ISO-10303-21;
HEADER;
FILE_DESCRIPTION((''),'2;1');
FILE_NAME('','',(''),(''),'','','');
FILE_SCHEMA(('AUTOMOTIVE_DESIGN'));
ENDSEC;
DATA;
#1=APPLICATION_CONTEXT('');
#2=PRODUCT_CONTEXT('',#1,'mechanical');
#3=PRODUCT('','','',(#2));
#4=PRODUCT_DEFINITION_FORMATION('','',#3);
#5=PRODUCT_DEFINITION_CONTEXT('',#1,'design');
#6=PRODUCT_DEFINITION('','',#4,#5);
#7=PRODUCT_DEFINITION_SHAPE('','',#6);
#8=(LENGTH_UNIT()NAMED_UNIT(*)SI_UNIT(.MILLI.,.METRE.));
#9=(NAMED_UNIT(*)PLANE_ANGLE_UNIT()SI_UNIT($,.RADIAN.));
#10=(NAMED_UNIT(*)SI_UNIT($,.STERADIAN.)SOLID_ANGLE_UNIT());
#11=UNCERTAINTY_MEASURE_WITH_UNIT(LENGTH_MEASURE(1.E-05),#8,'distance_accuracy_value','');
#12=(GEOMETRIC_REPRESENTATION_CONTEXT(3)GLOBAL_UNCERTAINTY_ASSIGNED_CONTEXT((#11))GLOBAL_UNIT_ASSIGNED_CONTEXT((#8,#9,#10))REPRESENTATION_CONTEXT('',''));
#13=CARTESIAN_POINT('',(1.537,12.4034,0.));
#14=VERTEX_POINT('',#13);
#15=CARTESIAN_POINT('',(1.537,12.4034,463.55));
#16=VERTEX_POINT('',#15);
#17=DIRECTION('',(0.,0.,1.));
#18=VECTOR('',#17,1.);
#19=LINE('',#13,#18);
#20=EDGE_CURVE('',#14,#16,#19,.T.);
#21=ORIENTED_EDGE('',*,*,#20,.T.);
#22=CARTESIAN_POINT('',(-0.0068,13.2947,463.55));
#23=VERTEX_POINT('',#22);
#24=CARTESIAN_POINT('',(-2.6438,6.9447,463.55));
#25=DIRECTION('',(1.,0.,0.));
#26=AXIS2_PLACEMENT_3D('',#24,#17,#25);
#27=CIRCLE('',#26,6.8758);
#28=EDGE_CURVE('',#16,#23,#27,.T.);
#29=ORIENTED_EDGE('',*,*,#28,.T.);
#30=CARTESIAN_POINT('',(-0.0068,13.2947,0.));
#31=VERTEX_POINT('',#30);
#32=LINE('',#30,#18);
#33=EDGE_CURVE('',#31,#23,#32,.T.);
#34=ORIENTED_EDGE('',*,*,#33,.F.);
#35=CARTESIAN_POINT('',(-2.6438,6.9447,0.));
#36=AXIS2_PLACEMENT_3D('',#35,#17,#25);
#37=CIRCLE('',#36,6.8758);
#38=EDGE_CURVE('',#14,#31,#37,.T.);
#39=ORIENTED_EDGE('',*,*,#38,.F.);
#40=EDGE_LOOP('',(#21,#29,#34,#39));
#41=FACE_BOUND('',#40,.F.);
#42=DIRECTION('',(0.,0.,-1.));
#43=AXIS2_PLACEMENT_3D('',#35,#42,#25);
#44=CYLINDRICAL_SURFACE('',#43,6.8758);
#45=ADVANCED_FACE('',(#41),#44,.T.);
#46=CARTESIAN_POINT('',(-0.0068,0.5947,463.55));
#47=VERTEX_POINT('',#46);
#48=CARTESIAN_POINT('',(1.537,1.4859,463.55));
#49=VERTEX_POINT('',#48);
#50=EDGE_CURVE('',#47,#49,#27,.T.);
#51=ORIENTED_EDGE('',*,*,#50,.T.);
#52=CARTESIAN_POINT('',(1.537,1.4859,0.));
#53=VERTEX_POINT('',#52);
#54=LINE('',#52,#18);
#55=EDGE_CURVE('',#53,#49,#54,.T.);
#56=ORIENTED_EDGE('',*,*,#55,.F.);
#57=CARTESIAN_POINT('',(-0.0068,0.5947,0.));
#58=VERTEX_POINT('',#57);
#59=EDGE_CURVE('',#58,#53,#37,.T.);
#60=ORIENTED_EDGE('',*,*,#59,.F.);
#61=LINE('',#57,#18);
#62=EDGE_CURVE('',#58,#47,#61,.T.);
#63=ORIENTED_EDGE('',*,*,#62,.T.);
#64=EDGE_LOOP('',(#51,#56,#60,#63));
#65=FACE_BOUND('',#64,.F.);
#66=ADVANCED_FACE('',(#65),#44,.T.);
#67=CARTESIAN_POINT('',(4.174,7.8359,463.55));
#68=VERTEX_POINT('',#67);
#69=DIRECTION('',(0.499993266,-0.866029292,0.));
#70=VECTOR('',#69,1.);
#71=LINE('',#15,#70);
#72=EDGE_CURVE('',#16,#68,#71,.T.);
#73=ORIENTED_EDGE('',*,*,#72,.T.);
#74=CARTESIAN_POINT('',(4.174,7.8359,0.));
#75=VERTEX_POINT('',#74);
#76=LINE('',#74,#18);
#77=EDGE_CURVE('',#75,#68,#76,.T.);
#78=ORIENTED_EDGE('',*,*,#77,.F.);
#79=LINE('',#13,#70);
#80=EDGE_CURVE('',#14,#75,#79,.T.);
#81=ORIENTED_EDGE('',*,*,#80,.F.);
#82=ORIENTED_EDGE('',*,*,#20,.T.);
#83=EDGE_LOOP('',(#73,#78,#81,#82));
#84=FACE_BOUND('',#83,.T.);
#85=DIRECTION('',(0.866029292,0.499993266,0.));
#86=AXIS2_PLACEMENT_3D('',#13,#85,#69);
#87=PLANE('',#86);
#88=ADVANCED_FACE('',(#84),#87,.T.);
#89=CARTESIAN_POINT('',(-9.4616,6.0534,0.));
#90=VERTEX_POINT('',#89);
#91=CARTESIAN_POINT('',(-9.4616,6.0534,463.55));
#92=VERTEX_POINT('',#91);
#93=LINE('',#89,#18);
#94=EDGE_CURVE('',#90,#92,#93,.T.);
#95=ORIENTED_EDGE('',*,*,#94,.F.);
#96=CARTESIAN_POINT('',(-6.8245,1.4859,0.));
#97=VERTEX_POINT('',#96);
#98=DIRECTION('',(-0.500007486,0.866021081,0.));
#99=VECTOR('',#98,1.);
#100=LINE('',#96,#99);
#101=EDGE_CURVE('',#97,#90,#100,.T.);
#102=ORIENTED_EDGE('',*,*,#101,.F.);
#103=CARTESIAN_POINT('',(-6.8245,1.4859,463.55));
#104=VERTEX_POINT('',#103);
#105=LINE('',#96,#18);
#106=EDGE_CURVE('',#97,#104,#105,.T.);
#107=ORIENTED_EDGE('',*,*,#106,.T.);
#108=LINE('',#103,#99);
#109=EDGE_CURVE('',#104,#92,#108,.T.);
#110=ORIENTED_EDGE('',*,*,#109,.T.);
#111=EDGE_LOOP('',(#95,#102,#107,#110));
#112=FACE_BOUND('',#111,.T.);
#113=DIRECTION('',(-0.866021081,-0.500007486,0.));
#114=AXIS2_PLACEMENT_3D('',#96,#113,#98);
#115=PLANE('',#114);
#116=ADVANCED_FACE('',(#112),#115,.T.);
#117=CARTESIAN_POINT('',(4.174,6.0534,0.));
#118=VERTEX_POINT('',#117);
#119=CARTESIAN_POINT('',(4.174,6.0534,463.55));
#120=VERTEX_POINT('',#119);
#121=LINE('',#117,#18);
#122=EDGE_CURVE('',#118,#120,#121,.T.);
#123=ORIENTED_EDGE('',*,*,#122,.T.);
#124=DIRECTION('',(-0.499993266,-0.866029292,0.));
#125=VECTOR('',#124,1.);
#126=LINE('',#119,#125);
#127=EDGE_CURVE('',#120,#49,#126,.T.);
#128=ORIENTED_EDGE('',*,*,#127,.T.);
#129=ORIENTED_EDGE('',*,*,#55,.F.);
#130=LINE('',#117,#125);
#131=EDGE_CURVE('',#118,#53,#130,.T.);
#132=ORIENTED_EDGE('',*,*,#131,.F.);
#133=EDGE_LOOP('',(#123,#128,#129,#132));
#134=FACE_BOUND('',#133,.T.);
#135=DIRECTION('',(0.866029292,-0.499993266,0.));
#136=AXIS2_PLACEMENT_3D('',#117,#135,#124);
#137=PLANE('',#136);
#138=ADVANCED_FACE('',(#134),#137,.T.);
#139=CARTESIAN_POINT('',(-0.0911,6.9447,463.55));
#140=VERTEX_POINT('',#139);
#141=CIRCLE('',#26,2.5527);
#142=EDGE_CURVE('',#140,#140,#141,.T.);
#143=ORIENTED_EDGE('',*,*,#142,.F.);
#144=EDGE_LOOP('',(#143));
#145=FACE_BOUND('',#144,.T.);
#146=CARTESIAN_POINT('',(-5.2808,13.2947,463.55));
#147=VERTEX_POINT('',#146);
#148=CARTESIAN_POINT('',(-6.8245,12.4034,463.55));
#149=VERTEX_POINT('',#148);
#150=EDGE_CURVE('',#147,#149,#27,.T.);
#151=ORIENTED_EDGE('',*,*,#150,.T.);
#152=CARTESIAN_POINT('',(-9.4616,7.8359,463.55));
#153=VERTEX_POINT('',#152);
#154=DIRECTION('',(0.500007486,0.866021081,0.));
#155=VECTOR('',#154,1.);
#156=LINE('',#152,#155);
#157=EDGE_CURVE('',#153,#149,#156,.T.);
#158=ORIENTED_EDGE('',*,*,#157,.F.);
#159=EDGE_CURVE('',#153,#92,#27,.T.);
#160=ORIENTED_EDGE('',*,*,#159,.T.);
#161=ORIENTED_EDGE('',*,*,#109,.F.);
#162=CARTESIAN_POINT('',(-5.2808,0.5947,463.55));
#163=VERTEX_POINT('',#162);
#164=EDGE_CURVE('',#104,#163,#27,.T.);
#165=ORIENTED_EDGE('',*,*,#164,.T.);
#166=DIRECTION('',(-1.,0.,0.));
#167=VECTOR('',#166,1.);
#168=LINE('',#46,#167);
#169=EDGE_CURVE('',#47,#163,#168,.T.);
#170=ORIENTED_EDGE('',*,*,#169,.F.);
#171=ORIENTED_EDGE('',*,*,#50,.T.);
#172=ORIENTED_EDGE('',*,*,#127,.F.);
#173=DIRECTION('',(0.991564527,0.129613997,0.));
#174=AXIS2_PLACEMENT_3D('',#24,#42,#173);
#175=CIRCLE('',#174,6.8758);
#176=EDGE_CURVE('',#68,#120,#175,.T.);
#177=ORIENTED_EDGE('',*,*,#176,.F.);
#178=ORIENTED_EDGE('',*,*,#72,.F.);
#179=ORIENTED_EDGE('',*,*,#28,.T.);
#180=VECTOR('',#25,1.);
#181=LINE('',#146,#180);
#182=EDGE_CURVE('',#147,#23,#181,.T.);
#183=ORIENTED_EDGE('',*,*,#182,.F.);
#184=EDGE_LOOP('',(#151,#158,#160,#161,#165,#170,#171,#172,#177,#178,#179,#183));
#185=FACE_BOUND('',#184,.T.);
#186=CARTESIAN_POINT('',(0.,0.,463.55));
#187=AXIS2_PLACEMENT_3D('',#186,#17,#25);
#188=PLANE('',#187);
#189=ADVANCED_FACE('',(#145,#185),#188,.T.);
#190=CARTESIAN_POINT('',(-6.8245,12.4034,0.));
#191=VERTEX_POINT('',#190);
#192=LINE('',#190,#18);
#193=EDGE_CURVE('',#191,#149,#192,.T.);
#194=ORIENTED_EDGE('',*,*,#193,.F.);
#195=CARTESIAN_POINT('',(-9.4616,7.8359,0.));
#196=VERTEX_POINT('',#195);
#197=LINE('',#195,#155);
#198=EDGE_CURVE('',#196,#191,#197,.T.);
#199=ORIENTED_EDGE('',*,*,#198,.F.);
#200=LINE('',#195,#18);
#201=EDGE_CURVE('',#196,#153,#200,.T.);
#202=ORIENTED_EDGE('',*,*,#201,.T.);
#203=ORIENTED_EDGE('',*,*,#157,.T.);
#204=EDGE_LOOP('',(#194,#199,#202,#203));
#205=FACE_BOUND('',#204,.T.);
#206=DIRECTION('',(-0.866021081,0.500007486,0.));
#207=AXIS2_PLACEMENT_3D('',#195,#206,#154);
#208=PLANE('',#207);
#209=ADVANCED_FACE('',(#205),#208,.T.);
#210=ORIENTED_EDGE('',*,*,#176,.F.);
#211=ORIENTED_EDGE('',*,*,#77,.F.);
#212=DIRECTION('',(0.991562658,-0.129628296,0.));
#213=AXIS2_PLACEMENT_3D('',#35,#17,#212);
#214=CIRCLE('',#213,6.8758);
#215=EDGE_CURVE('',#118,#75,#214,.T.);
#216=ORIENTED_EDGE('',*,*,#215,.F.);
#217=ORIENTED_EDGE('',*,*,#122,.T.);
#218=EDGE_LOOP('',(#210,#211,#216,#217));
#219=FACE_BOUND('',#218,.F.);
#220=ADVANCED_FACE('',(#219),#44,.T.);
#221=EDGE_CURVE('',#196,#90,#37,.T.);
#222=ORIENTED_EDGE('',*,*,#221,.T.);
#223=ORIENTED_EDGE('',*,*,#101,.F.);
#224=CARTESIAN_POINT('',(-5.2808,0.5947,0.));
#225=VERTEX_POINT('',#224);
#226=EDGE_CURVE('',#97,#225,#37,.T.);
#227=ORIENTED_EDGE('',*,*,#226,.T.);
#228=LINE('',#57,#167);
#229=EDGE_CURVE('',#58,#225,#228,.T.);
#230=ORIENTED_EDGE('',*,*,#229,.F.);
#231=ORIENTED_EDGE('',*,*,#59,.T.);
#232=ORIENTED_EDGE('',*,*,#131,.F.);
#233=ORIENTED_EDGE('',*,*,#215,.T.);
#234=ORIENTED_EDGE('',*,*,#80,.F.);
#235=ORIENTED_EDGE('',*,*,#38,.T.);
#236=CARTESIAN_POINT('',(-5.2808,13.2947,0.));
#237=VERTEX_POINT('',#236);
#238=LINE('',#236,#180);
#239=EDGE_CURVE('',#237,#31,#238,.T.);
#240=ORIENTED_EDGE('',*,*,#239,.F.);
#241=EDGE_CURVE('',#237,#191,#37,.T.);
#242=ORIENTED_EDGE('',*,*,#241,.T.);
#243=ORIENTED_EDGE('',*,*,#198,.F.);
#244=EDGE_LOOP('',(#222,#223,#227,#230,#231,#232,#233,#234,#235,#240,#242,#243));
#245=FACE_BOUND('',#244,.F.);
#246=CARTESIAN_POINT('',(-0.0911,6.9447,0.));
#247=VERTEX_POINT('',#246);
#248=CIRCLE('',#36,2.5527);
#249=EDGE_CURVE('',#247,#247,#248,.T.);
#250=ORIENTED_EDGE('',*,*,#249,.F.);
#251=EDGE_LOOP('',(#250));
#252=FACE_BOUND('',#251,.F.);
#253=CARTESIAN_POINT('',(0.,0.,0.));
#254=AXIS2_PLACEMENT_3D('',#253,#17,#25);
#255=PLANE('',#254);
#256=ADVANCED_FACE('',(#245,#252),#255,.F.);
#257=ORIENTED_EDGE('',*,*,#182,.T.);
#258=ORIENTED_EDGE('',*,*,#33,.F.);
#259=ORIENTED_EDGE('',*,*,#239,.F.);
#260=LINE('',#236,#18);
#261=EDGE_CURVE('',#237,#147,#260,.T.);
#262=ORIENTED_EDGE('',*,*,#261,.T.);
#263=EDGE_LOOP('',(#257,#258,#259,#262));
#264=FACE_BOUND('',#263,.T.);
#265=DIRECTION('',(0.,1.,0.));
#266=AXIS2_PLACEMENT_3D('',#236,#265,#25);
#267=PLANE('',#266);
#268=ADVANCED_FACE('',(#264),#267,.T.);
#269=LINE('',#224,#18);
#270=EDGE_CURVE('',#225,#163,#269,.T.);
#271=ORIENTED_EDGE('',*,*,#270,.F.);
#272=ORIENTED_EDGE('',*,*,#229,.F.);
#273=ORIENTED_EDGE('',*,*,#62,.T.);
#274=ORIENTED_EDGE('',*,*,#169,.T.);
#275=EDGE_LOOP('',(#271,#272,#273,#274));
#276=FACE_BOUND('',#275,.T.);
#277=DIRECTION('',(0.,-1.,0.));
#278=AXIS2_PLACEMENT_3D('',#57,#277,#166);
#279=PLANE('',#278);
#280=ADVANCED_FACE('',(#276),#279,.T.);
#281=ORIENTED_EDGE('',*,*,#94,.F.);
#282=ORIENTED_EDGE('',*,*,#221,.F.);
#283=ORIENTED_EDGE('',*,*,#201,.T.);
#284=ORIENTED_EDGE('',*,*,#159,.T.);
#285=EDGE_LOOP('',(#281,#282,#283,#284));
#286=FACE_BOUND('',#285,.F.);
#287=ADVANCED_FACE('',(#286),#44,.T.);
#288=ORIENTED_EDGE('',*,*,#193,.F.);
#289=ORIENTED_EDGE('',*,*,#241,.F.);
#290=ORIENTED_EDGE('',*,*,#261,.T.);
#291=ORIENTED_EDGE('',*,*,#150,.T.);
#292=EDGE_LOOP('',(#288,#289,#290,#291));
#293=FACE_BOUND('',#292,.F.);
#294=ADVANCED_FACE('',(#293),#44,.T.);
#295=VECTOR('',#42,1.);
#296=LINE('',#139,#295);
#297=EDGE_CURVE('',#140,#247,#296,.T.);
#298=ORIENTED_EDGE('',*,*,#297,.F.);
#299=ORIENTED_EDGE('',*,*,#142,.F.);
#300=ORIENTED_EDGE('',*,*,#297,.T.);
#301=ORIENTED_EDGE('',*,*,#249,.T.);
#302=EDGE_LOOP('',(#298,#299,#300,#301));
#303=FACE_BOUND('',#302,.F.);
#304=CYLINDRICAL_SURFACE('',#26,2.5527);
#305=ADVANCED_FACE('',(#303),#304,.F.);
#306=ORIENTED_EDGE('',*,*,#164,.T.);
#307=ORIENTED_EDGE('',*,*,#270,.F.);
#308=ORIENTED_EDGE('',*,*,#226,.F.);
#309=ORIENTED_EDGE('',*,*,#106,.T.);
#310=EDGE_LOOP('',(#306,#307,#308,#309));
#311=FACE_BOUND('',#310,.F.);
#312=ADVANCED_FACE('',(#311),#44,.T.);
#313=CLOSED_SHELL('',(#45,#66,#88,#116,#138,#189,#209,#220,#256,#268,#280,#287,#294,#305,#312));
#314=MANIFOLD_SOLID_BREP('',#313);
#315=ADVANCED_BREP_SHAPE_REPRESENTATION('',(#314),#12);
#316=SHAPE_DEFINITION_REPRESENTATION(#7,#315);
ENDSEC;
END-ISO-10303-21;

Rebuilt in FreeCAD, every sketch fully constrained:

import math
import FreeCAD as App
import Part
import Sketcher
Q = App.Units.Quantity

doc = App.newDocument("Part")
body = doc.addObject("PartDesign::Body", "Body")

# Sketch on XY plane
sketch1 = doc.addObject("Sketcher::SketchObject", "Sketch")
body.addObject(sketch1)
sketch1.AttachmentSupport = (doc.XY_Plane, [""])
sketch1.MapMode = "FlatFace"
sketch1.addGeometry([
    Part.ArcOfCircle(Part.Circle(App.Vector(-2.6438, 6.9447, 0), App.Vector(0, 0, 1), 6.8758), math.radians(-7.448114), math.radians(7.447287)),  # 0
    Part.LineSegment(App.Vector(4.174, 7.8359, 0), App.Vector(1.537, 12.4034, 0)),  # 1
    Part.ArcOfCircle(Part.Circle(App.Vector(-2.6438, 6.9447, 0), App.Vector(0, 0, 1), 6.8758), math.radians(52.551618), math.radians(67.448081)),  # 2
    Part.LineSegment(App.Vector(-0.0068, 13.2947, 0), App.Vector(-5.2808, 13.2947, 0)),  # 3
    Part.ArcOfCircle(Part.Circle(App.Vector(-2.6438, 6.9447, 0), App.Vector(0, 0, 1), 6.8758), math.radians(112.551919), math.radians(127.447721)),  # 4
    Part.LineSegment(App.Vector(-6.8245, 12.4034, 0), App.Vector(-9.4616, 7.8359, 0)),  # 5
    Part.ArcOfCircle(Part.Circle(App.Vector(-2.6438, 6.9447, 0), App.Vector(0, 0, 1), 6.8758), math.radians(172.552713), math.radians(187.448114)),  # 6
    Part.LineSegment(App.Vector(-9.4616, 6.0534, 0), App.Vector(-6.8245, 1.4859, 0)),  # 7
    Part.ArcOfCircle(Part.Circle(App.Vector(-2.6438, 6.9447, 0), App.Vector(0, 0, 1), 6.8758), math.radians(-127.447214), math.radians(-112.551919)),  # 8
    Part.LineSegment(App.Vector(-5.2808, 0.5947, 0), App.Vector(-0.0068, 0.5947, 0)),  # 9
    Part.ArcOfCircle(Part.Circle(App.Vector(-2.6438, 6.9447, 0), App.Vector(0, 0, 1), 6.8758), math.radians(-67.448081), math.radians(-52.552124)),  # 10
    Part.LineSegment(App.Vector(1.537, 1.4859, 0), App.Vector(4.174, 6.0534, 0)),  # 11
], False)
sketch1.addConstraint([
    Sketcher.Constraint("Coincident", 0, 2, 1, 1),
    Sketcher.Constraint("Coincident", 1, 2, 2, 1),
    Sketcher.Constraint("Coincident", 2, 2, 3, 1),
    Sketcher.Constraint("Coincident", 3, 2, 4, 1),
    Sketcher.Constraint("Coincident", 4, 2, 5, 1),
    Sketcher.Constraint("Coincident", 5, 2, 6, 1),
    Sketcher.Constraint("Coincident", 6, 2, 7, 1),
    Sketcher.Constraint("Coincident", 7, 2, 8, 1),
    Sketcher.Constraint("Coincident", 8, 2, 9, 1),
    Sketcher.Constraint("Coincident", 9, 2, 10, 1),
    Sketcher.Constraint("Coincident", 10, 2, 11, 1),
    Sketcher.Constraint("Coincident", 11, 2, 0, 1),
    Sketcher.Constraint("Horizontal", 3),
    Sketcher.Constraint("Horizontal", 9),
    Sketcher.Constraint("Coincident", 2, 3, 0, 3),
    Sketcher.Constraint("Coincident", 4, 3, 0, 3),
    Sketcher.Constraint("Coincident", 6, 3, 0, 3),
    Sketcher.Constraint("Coincident", 8, 3, 0, 3),
    Sketcher.Constraint("Coincident", 10, 3, 0, 3),
    Sketcher.Constraint("Equal", 0, 2),
    Sketcher.Constraint("Equal", 2, 4),
    Sketcher.Constraint("Equal", 4, 6),
    Sketcher.Constraint("Equal", 6, 8),
    Sketcher.Constraint("Equal", 8, 10),
    Sketcher.Constraint("Parallel", 1, 7),
    Sketcher.Constraint("Parallel", 5, 11),
    Sketcher.Constraint("Horizontal", 1, 2, 4, 2),
    Sketcher.Constraint("Horizontal", 0, 2, 5, 2),
    Sketcher.Constraint("Horizontal", 7, 2, 10, 2),
    Sketcher.Constraint("Vertical", 5, 2, 6, 2),
    Sketcher.Constraint("Vertical", 3, 2, 8, 2),
    Sketcher.Constraint("Radius", 0, Q("0.2707 in")),
    Sketcher.Constraint("Angle", 1, Q("119.9996 deg")),
    Sketcher.Constraint("DistanceY", 0, 3, 2, 2, Q("0.25 in")),
    Sketcher.Constraint("DistanceY", 10, 2, 0, 2, Q("0.25 in")),
    Sketcher.Constraint("DistanceY", -1, 1, 0, 2, Q("0.3085 in")),
    Sketcher.Constraint("DistanceX", -1, 1, 1, 2, Q("0.0605 in")),
])
pad1 = doc.addObject("PartDesign::Pad", "Pad")
body.addObject(pad1)
pad1.Profile = sketch1
pad1.Length = Q("18.25 in")

# Sketch on XY plane
sketch2 = doc.addObject("Sketcher::SketchObject", "Sketch001")
body.addObject(sketch2)
sketch2.AttachmentSupport = (doc.XY_Plane, [""])
sketch2.MapMode = "FlatFace"
sketch2.AttachmentOffset = App.Placement(App.Vector(0, 0, 18.25 * 25.4), App.Rotation())
sketch2.addGeometry(Part.Circle(App.Vector(-2.6438, 6.9447, 0), App.Vector(0, 0, 1), 2.5527), False)
sketch2.addConstraint([
    Sketcher.Constraint("Diameter", 0, Q("0.201 in")),
    Sketcher.Constraint("DistanceX", 0, 3, -1, 1, Q("2.6438 mm")),
    Sketcher.Constraint("DistanceY", -1, 1, 0, 3, Q("6.9447 mm")),
])
pocket1 = doc.addObject("PartDesign::Pocket", "Pocket")
body.addObject(pocket1)
pocket1.Profile = sketch2
pocket1.Length = Q("18.25 in")

doc.recompute()
